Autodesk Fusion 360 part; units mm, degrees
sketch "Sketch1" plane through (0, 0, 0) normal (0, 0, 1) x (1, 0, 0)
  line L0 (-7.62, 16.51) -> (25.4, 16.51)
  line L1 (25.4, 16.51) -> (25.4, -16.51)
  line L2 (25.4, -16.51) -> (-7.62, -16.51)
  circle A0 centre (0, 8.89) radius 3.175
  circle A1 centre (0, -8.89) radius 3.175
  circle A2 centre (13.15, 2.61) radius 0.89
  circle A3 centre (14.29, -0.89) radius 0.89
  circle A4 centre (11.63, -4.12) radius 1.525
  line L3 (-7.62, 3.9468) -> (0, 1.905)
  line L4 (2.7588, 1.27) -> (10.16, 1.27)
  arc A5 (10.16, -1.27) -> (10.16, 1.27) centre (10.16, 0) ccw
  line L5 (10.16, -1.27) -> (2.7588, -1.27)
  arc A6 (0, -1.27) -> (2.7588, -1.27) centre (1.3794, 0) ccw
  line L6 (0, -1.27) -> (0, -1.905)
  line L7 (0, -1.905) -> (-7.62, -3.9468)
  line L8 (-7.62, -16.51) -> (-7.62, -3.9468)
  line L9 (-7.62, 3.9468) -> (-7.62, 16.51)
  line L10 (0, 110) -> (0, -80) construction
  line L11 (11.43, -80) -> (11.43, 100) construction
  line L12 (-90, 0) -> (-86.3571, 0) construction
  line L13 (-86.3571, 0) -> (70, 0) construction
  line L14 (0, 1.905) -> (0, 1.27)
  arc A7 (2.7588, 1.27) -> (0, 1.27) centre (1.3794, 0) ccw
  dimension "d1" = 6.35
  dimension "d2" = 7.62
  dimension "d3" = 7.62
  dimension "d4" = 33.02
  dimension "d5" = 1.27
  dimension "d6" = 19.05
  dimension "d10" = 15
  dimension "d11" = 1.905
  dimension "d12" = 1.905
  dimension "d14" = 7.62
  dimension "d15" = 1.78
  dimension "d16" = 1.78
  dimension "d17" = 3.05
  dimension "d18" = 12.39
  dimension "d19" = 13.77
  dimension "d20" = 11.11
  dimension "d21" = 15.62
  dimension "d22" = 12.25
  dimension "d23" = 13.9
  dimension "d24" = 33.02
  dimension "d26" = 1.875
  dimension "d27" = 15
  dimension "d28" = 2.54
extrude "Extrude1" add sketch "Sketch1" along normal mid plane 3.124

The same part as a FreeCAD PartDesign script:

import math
import FreeCAD as App
import Part
import Sketcher
Q = App.Units.Quantity

doc = App.newDocument("Part")
body = doc.addObject("PartDesign::Body", "Body")

sketch1 = body.newObject("Sketcher::SketchObject", "Sketch")
sketch1.AttachmentSupport = (doc.getObject("XY_Plane"), [""])
sketch1.MapMode = "FlatFace"
sketch1.addGeometry([
    Part.LineSegment(App.Vector(25.4, 16.5, 0), App.Vector(-7.6, 16.5, 0)),
    Part.LineSegment(App.Vector(-7.6, 16.5, 0), App.Vector(-7.6, 3.9, 0)),
    Part.LineSegment(App.Vector(-7.6, 3.9, 0), App.Vector(0, 1.9, 0)),
    Part.LineSegment(App.Vector(0, 1.9, 0), App.Vector(0, 1.3, 0)),
    Part.ArcOfCircle(Part.Circle(App.Vector(1.4, 0, 0), App.Vector(0, 0, 1), 1.9), math.radians(43), math.radians(137)),
    Part.LineSegment(App.Vector(2.8, 1.3, 0), App.Vector(10.2, 1.3, 0)),
    Part.ArcOfCircle(Part.Circle(App.Vector(10.2, 0, 0), App.Vector(0, 0, 1), 1.3), math.radians(-90), math.radians(90)),
    Part.LineSegment(App.Vector(10.2, -1.3, 0), App.Vector(2.8, -1.3, 0)),
    Part.ArcOfCircle(Part.Circle(App.Vector(1.4, 0, 0), App.Vector(0, 0, 1), 1.9), math.radians(-137), math.radians(-43)),
    Part.LineSegment(App.Vector(0, -1.3, 0), App.Vector(0, -1.9, 0)),
    Part.LineSegment(App.Vector(0, -1.9, 0), App.Vector(-7.6, -3.9, 0)),
    Part.LineSegment(App.Vector(-7.6, -3.9, 0), App.Vector(-7.6, -16.5, 0)),
    Part.LineSegment(App.Vector(-7.6, -16.5, 0), App.Vector(25.4, -16.5, 0)),
    Part.LineSegment(App.Vector(25.4, -16.5, 0), App.Vector(25.4, 16.5, 0)),
    Part.Circle(App.Vector(0, -8.9, 0), App.Vector(0, 0, 1), 3.2),
    Part.Circle(App.Vector(11.6, -4.1, 0), App.Vector(0, 0, 1), 1.5),
    Part.Circle(App.Vector(14.3, -0.9, 0), App.Vector(0, 0, 1), 0.9),
    Part.Circle(App.Vector(0, 8.9, 0), App.Vector(0, 0, 1), 3.2),
    Part.Circle(App.Vector(13.2, 2.6, 0), App.Vector(0, 0, 1), 0.9),
], False)
sketch1.addConstraint([
    Sketcher.Constraint("Coincident", 0, 2, 1, 1),
    Sketcher.Constraint("Coincident", 1, 2, 2, 1),
    Sketcher.Constraint("Coincident", 2, 2, 3, 1),
    Sketcher.Constraint("Coincident", 3, 2, 4, 2),
    Sketcher.Constraint("Coincident", 4, 1, 5, 1),
    Sketcher.Constraint("Tangent", 5, 2, 6, 2),
    Sketcher.Constraint("Tangent", 6, 1, 7, 1),
    Sketcher.Constraint("Coincident", 7, 2, 8, 2),
    Sketcher.Constraint("Coincident", 8, 1, 9, 1),
    Sketcher.Constraint("Coincident", 9, 2, 10, 1),
    Sketcher.Constraint("Coincident", 10, 2, 11, 1),
    Sketcher.Constraint("Coincident", 11, 2, 12, 1),
    Sketcher.Constraint("Coincident", 12, 2, 13, 1),
    Sketcher.Constraint("Coincident", 13, 2, 0, 1),
    Sketcher.Constraint("Horizontal", 0),
    Sketcher.Constraint("Vertical", 1),
    Sketcher.Constraint("Vertical", 3),
    Sketcher.Constraint("Horizontal", 5),
    Sketcher.Constraint("Horizontal", 7),
    Sketcher.Constraint("Vertical", 9),
    Sketcher.Constraint("Vertical", 11),
    Sketcher.Constraint("Horizontal", 12),
    Sketcher.Constraint("Vertical", 13),
    Sketcher.Constraint("Coincident", 8, 3, 4, 3),
    Sketcher.Constraint("Equal", 4, 8),
    Sketcher.Constraint("Equal", 14, 17),
    Sketcher.Constraint("Equal", 16, 18),
    Sketcher.Constraint("Symmetric", 14, 3, 17, 3, -1, 1),
    Sketcher.Constraint("Symmetric", 3, 2, 8, 1, -1, 1),
    Sketcher.Constraint("Symmetric", 4, 1, 7, 2, -1),
    Sketcher.Constraint("Symmetric", 1, 2, 10, 2, -1),
    Sketcher.Constraint("PointOnObject", 14, 3, -2),
    Sketcher.Constraint("Horizontal", 3, 2, 4, 1),
    Sketcher.Constraint("Equal", 3, 9),
    Sketcher.Constraint("Equal", 1, 11),
    Sketcher.Constraint("Equal", 12, 13),
    Sketcher.Constraint("Diameter", 14, Q("0.25 in")),
    Sketcher.Constraint("Radius", 6, Q("0.05 in")),
    Sketcher.Constraint("DistanceX", 0, 2, 0, 1, Q("1.3 in")),
    Sketcher.Constraint("Angle", 2, Q("-15.0002 deg")),
    Sketcher.Constraint("DistanceX", 0, 2, -1, 1, Q("0.3 in")),
    Sketcher.Constraint("DistanceY", 17, 3, 0, 2, Q("0.3 in")),
    Sketcher.Constraint("Diameter", 15, 3.05),
    Sketcher.Constraint("Diameter", 16, 1.78),
    Sketcher.Constraint("Radius", 4, 1.875),
    Sketcher.Constraint("DistanceY", -1, 1, 2, 2, Q("0.075 in")),
    Sketcher.Constraint("DistanceX", -1, 1, 6, 3, Q("0.4 in")),
    Sketcher.Constraint("DistanceY", 12, 2, 15, 3, Q("0.4878 in")),
    Sketcher.Constraint("DistanceX", 16, 3, 12, 2, Q("0.4374 in")),
    Sketcher.Constraint("DistanceY", 18, 3, 0, 2, 13.9),
    Sketcher.Constraint("DistanceX", 15, 3, 12, 2, 13.77),
    Sketcher.Constraint("DistanceY", 12, 2, 16, 3, 15.62),
    Sketcher.Constraint("DistanceX", 18, 3, 12, 2, 12.25),
])
pad1 = body.newObject("PartDesign::Pad", "Pad")
pad1.Profile = sketch1
pad1.Length = Q("0.1229921 in")
pad1.Midplane = True

doc.recompute()
